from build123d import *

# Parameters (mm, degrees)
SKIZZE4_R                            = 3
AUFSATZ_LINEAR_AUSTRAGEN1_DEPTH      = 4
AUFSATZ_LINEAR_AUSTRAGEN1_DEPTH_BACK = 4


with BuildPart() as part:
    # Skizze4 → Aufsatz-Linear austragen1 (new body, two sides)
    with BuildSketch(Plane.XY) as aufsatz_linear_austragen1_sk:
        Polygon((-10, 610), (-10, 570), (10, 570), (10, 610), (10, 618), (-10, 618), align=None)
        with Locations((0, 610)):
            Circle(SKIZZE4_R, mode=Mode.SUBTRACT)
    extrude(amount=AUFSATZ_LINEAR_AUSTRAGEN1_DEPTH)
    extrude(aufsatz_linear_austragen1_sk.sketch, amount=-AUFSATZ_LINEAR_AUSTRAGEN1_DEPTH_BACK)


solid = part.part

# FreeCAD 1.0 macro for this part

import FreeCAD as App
import Part
import Sketcher
from FreeCAD import Vector
Q = App.Units.Quantity

doc = App.newDocument("Part")
params = doc.addObject("Spreadsheet::Sheet", "Params")
for row, (alias, value) in enumerate([
    ("sketch1_diameter", "6 mm"),
    ("sketch1_width", "20 mm"),
    ("sketch1_height", "48 mm"),
    ("pad1_length", "4 mm"),
    ("pad1_length2", "4 mm"),
], start=1):
    params.set(f"A{row}", alias)
    params.set(f"B{row}", "=" + value)
    params.setAlias(f"B{row}", alias)

body = doc.addObject("PartDesign::Body", "Body")

# Sketch on XY plane
sketch1 = body.newObject("Sketcher::SketchObject", "Sketch")
sketch1.AttachmentSupport = (doc.getObject("XY_Plane"), [""])
sketch1.MapMode = "FlatFace"
sketch1.addGeometry([
    Part.LineSegment(Vector(-10, 570, 0), Vector(10, 570, 0)),  # 0
    Part.LineSegment(Vector(10, 570, 0), Vector(10, 618, 0)),  # 1
    Part.LineSegment(Vector(10, 618, 0), Vector(-10, 618, 0)),  # 2
    Part.LineSegment(Vector(-10, 618, 0), Vector(-10, 570, 0)),  # 3
    Part.Circle(Vector(0, 610, 0), Vector(0, 0, 1), 3),  # 4
], False)
sketch1.addConstraint([
    Sketcher.Constraint("Coincident", 0, 2, 1, 1),
    Sketcher.Constraint("Coincident", 1, 2, 2, 1),
    Sketcher.Constraint("Coincident", 2, 2, 3, 1),
    Sketcher.Constraint("Coincident", 3, 2, 0, 1),
    Sketcher.Constraint("Horizontal", 0),
    Sketcher.Constraint("Vertical", 1),
    Sketcher.Constraint("Horizontal", 2),
    Sketcher.Constraint("Vertical", 3),
    Sketcher.Constraint("PointOnObject", 4, 3, -2),
    Sketcher.Constraint("Diameter", 4, Q("6 mm")),
    Sketcher.Constraint("DistanceX", 0, 1, 0, 2, Q("20 mm")),
    Sketcher.Constraint("DistanceY", 1, 1, 1, 2, Q("48 mm")),
    Sketcher.Constraint("DistanceY", -1, 1, 4, 3, Q("610 mm")),
    Sketcher.Constraint("DistanceX", -1, 1, 0, 2, Q("10 mm")),
    Sketcher.Constraint("DistanceY", -1, 1, 0, 2, Q("570 mm")),
])
sketch1.setExpression("Constraints[9]", "Params.sketch1_diameter")
sketch1.setExpression("Constraints[10]", "Params.sketch1_width")
sketch1.setExpression("Constraints[11]", "Params.sketch1_height")
pad1 = body.newObject("PartDesign::Pad", "Pad")
pad1.Profile = sketch1
pad1.Type = "TwoLengths"
pad1.setExpression("Length", "Params.pad1_length")
pad1.setExpression("Length2", "Params.pad1_length2")

doc.recompute()
